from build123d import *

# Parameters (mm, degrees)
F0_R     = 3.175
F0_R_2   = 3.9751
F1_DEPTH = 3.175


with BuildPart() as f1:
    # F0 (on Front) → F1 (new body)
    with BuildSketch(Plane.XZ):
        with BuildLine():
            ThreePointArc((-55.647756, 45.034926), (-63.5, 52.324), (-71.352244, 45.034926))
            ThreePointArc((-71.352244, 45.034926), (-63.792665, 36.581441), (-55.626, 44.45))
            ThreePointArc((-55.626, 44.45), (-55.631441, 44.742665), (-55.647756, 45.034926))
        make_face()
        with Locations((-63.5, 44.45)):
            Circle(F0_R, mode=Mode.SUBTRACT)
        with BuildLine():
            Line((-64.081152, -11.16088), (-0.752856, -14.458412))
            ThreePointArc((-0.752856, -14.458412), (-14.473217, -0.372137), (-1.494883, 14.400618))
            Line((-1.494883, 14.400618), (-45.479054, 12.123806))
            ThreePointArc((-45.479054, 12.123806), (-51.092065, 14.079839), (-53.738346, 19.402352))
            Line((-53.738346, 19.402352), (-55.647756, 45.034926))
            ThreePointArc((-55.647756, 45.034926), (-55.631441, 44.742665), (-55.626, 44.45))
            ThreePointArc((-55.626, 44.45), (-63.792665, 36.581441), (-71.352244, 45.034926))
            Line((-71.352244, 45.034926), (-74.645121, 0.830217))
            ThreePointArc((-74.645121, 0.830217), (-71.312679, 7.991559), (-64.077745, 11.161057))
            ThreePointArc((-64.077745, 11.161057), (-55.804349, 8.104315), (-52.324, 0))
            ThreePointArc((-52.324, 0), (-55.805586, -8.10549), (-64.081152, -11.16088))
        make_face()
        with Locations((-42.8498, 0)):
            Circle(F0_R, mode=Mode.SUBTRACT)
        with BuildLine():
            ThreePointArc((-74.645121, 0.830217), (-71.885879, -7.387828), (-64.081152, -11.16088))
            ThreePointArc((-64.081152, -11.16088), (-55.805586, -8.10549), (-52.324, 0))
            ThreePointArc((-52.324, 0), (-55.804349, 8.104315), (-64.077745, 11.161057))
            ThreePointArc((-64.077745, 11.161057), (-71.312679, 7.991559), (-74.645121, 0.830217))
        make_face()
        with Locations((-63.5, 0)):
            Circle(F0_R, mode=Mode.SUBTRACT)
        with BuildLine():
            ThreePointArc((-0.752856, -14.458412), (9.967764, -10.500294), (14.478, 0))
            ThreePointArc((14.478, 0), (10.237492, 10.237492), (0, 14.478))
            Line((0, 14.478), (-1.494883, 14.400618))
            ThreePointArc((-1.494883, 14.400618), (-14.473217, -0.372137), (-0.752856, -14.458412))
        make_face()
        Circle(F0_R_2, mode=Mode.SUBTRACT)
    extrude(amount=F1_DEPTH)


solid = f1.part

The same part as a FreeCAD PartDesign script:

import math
import FreeCAD as App
import Part
import Sketcher
from FreeCAD import Vector
Q = App.Units.Quantity

doc = App.newDocument("Part")
params = doc.addObject("Spreadsheet::Sheet", "Params")
for row, (alias, value) in enumerate([
    ("sketch1_diameter", "0.25 in"),
    ("sketch1_radius", "0.31 in"),
    ("sketch1_radius2", "0.4400001 in"),
    ("sketch1_radius3", "0.5699999 in"),
    ("sketch1_diameter2", "0.313 in"),
    ("pad1_length", "0.125 in"),
], start=1):
    params.set(f"A{row}", alias)
    params.set(f"B{row}", "=" + value)
    params.setAlias(f"B{row}", alias)

body = doc.addObject("PartDesign::Body", "Body")

sketch1 = body.newObject("Sketcher::SketchObject", "Sketch")
sketch1.AttachmentSupport = (doc.getObject("XZ_Plane"), [""])
sketch1.MapMode = "FlatFace"
sketch1.addGeometry([
    Part.ArcOfCircle(Part.Circle(Vector(-63.5, 44.5, 0), Vector(0, 0, 1), 7.9), math.radians(4), math.radians(176)),
    Part.LineSegment(Vector(-71.4, 45, 0), Vector(-74.6, 0.8, 0)),
    Part.ArcOfCircle(Part.Circle(Vector(-63.5, 0, 0), Vector(0, 0, 1), 11.2), math.radians(176), math.radians(267)),
    Part.LineSegment(Vector(-64.1, -11.2, 0), Vector(-0.8, -14.5, 0)),
    Part.ArcOfCircle(Part.Circle(Vector(0, 0, 0), Vector(0, 0, 1), 14.5), math.radians(-93), math.radians(0)),
    Part.ArcOfCircle(Part.Circle(Vector(0, 0, 0), Vector(0, 0, 1), 14.5), math.radians(0), math.radians(90)),
    Part.LineSegment(Vector(0, 14.5, 0), Vector(-1.5, 14.4, 0)),
    Part.LineSegment(Vector(-1.5, 14.4, 0), Vector(-45.5, 12.1, 0)),
    Part.ArcOfCircle(Part.Circle(Vector(-45.9, 20, 0), Vector(0, 0, 1), 7.9), math.radians(-176), math.radians(-87)),
    Part.LineSegment(Vector(-53.7, 19.4, 0), Vector(-55.6, 45, 0)),
    Part.Circle(Vector(-63.5, 0, 0), Vector(0, 0, 1), 3.2),
    Part.Circle(Vector(-42.8, 0, 0), Vector(0, 0, 1), 3.2),
    Part.Circle(Vector(0, 0, 0), Vector(0, 0, 1), 4),
    Part.Circle(Vector(-63.5, 44.5, 0), Vector(0, 0, 1), 3.2),
], False)
sketch1.addConstraint([
    Sketcher.Constraint("Tangent", 0, 2, 1, 1),
    Sketcher.Constraint("Tangent", 1, 2, 2, 1),
    Sketcher.Constraint("Tangent", 2, 2, 3, 1),
    Sketcher.Constraint("Tangent", 3, 2, 4, 1),
    Sketcher.Constraint("Tangent", 4, 2, 5, 1),
    Sketcher.Constraint("Coincident", 5, 2, 6, 1),
    Sketcher.Constraint("Coincident", 6, 2, 7, 1),
    Sketcher.Constraint("Tangent", 7, 2, 8, 2),
    Sketcher.Constraint("Tangent", 8, 1, 9, 1),
    Sketcher.Constraint("Tangent", 9, 2, 0, 1),
    Sketcher.Constraint("Coincident", 4, 3, -1, 1),
    Sketcher.Constraint("Coincident", 12, 3, -1, 1),
    Sketcher.Constraint("Coincident", 10, 3, 2, 3),
    Sketcher.Constraint("Coincident", 13, 3, 0, 3),
    Sketcher.Constraint("Equal", 4, 5),
    Sketcher.Constraint("Equal", 0, 8),
    Sketcher.Constraint("Equal", 10, 11),
    Sketcher.Constraint("Equal", 11, 13),
    Sketcher.Constraint("PointOnObject", 2, 3, -1),
    Sketcher.Constraint("PointOnObject", 11, 3, -1),
    Sketcher.Constraint("PointOnObject", 4, 2, -1),
    Sketcher.Constraint("PointOnObject", 5, 2, -2),
    Sketcher.Constraint("Parallel", 6, 7),
    Sketcher.Constraint("Horizontal", 0, 2, 9, 2),
    Sketcher.Constraint("Vertical", 0, 3, 2, 3),
    Sketcher.Constraint("Diameter", 10, Q("0.25 in")),
    Sketcher.Constraint("Radius", 0, Q("0.31 in")),
    Sketcher.Constraint("Radius", 2, Q("0.4400001 in")),
    Sketcher.Constraint("Radius", 4, Q("0.5699999 in")),
    Sketcher.Constraint("Diameter", 12, Q("0.313 in")),
    Sketcher.Constraint("DistanceX", 0, 3, -1, 1, Q("2.5 in")),
    Sketcher.Constraint("DistanceY", -1, 1, 0, 3, Q("1.75 in")),
    Sketcher.Constraint("DistanceX", 11, 3, -1, 1, Q("1.687 in")),
    Sketcher.Constraint("DistanceX", 2, 2, 7, 2, Q("18.602098 mm")),
    Sketcher.Constraint("Distance", 7, Q("44.04306 mm")),
])
sketch1.setExpression("Constraints[25]", "Params.sketch1_diameter")
sketch1.setExpression("Constraints[26]", "Params.sketch1_radius")
sketch1.setExpression("Constraints[27]", "Params.sketch1_radius2")
sketch1.setExpression("Constraints[28]", "Params.sketch1_radius3")
sketch1.setExpression("Constraints[29]", "Params.sketch1_diameter2")
pad1 = body.newObject("PartDesign::Pad", "Pad")
pad1.Profile = sketch1
pad1.setExpression("Length", "Params.pad1_length")

doc.recompute()
